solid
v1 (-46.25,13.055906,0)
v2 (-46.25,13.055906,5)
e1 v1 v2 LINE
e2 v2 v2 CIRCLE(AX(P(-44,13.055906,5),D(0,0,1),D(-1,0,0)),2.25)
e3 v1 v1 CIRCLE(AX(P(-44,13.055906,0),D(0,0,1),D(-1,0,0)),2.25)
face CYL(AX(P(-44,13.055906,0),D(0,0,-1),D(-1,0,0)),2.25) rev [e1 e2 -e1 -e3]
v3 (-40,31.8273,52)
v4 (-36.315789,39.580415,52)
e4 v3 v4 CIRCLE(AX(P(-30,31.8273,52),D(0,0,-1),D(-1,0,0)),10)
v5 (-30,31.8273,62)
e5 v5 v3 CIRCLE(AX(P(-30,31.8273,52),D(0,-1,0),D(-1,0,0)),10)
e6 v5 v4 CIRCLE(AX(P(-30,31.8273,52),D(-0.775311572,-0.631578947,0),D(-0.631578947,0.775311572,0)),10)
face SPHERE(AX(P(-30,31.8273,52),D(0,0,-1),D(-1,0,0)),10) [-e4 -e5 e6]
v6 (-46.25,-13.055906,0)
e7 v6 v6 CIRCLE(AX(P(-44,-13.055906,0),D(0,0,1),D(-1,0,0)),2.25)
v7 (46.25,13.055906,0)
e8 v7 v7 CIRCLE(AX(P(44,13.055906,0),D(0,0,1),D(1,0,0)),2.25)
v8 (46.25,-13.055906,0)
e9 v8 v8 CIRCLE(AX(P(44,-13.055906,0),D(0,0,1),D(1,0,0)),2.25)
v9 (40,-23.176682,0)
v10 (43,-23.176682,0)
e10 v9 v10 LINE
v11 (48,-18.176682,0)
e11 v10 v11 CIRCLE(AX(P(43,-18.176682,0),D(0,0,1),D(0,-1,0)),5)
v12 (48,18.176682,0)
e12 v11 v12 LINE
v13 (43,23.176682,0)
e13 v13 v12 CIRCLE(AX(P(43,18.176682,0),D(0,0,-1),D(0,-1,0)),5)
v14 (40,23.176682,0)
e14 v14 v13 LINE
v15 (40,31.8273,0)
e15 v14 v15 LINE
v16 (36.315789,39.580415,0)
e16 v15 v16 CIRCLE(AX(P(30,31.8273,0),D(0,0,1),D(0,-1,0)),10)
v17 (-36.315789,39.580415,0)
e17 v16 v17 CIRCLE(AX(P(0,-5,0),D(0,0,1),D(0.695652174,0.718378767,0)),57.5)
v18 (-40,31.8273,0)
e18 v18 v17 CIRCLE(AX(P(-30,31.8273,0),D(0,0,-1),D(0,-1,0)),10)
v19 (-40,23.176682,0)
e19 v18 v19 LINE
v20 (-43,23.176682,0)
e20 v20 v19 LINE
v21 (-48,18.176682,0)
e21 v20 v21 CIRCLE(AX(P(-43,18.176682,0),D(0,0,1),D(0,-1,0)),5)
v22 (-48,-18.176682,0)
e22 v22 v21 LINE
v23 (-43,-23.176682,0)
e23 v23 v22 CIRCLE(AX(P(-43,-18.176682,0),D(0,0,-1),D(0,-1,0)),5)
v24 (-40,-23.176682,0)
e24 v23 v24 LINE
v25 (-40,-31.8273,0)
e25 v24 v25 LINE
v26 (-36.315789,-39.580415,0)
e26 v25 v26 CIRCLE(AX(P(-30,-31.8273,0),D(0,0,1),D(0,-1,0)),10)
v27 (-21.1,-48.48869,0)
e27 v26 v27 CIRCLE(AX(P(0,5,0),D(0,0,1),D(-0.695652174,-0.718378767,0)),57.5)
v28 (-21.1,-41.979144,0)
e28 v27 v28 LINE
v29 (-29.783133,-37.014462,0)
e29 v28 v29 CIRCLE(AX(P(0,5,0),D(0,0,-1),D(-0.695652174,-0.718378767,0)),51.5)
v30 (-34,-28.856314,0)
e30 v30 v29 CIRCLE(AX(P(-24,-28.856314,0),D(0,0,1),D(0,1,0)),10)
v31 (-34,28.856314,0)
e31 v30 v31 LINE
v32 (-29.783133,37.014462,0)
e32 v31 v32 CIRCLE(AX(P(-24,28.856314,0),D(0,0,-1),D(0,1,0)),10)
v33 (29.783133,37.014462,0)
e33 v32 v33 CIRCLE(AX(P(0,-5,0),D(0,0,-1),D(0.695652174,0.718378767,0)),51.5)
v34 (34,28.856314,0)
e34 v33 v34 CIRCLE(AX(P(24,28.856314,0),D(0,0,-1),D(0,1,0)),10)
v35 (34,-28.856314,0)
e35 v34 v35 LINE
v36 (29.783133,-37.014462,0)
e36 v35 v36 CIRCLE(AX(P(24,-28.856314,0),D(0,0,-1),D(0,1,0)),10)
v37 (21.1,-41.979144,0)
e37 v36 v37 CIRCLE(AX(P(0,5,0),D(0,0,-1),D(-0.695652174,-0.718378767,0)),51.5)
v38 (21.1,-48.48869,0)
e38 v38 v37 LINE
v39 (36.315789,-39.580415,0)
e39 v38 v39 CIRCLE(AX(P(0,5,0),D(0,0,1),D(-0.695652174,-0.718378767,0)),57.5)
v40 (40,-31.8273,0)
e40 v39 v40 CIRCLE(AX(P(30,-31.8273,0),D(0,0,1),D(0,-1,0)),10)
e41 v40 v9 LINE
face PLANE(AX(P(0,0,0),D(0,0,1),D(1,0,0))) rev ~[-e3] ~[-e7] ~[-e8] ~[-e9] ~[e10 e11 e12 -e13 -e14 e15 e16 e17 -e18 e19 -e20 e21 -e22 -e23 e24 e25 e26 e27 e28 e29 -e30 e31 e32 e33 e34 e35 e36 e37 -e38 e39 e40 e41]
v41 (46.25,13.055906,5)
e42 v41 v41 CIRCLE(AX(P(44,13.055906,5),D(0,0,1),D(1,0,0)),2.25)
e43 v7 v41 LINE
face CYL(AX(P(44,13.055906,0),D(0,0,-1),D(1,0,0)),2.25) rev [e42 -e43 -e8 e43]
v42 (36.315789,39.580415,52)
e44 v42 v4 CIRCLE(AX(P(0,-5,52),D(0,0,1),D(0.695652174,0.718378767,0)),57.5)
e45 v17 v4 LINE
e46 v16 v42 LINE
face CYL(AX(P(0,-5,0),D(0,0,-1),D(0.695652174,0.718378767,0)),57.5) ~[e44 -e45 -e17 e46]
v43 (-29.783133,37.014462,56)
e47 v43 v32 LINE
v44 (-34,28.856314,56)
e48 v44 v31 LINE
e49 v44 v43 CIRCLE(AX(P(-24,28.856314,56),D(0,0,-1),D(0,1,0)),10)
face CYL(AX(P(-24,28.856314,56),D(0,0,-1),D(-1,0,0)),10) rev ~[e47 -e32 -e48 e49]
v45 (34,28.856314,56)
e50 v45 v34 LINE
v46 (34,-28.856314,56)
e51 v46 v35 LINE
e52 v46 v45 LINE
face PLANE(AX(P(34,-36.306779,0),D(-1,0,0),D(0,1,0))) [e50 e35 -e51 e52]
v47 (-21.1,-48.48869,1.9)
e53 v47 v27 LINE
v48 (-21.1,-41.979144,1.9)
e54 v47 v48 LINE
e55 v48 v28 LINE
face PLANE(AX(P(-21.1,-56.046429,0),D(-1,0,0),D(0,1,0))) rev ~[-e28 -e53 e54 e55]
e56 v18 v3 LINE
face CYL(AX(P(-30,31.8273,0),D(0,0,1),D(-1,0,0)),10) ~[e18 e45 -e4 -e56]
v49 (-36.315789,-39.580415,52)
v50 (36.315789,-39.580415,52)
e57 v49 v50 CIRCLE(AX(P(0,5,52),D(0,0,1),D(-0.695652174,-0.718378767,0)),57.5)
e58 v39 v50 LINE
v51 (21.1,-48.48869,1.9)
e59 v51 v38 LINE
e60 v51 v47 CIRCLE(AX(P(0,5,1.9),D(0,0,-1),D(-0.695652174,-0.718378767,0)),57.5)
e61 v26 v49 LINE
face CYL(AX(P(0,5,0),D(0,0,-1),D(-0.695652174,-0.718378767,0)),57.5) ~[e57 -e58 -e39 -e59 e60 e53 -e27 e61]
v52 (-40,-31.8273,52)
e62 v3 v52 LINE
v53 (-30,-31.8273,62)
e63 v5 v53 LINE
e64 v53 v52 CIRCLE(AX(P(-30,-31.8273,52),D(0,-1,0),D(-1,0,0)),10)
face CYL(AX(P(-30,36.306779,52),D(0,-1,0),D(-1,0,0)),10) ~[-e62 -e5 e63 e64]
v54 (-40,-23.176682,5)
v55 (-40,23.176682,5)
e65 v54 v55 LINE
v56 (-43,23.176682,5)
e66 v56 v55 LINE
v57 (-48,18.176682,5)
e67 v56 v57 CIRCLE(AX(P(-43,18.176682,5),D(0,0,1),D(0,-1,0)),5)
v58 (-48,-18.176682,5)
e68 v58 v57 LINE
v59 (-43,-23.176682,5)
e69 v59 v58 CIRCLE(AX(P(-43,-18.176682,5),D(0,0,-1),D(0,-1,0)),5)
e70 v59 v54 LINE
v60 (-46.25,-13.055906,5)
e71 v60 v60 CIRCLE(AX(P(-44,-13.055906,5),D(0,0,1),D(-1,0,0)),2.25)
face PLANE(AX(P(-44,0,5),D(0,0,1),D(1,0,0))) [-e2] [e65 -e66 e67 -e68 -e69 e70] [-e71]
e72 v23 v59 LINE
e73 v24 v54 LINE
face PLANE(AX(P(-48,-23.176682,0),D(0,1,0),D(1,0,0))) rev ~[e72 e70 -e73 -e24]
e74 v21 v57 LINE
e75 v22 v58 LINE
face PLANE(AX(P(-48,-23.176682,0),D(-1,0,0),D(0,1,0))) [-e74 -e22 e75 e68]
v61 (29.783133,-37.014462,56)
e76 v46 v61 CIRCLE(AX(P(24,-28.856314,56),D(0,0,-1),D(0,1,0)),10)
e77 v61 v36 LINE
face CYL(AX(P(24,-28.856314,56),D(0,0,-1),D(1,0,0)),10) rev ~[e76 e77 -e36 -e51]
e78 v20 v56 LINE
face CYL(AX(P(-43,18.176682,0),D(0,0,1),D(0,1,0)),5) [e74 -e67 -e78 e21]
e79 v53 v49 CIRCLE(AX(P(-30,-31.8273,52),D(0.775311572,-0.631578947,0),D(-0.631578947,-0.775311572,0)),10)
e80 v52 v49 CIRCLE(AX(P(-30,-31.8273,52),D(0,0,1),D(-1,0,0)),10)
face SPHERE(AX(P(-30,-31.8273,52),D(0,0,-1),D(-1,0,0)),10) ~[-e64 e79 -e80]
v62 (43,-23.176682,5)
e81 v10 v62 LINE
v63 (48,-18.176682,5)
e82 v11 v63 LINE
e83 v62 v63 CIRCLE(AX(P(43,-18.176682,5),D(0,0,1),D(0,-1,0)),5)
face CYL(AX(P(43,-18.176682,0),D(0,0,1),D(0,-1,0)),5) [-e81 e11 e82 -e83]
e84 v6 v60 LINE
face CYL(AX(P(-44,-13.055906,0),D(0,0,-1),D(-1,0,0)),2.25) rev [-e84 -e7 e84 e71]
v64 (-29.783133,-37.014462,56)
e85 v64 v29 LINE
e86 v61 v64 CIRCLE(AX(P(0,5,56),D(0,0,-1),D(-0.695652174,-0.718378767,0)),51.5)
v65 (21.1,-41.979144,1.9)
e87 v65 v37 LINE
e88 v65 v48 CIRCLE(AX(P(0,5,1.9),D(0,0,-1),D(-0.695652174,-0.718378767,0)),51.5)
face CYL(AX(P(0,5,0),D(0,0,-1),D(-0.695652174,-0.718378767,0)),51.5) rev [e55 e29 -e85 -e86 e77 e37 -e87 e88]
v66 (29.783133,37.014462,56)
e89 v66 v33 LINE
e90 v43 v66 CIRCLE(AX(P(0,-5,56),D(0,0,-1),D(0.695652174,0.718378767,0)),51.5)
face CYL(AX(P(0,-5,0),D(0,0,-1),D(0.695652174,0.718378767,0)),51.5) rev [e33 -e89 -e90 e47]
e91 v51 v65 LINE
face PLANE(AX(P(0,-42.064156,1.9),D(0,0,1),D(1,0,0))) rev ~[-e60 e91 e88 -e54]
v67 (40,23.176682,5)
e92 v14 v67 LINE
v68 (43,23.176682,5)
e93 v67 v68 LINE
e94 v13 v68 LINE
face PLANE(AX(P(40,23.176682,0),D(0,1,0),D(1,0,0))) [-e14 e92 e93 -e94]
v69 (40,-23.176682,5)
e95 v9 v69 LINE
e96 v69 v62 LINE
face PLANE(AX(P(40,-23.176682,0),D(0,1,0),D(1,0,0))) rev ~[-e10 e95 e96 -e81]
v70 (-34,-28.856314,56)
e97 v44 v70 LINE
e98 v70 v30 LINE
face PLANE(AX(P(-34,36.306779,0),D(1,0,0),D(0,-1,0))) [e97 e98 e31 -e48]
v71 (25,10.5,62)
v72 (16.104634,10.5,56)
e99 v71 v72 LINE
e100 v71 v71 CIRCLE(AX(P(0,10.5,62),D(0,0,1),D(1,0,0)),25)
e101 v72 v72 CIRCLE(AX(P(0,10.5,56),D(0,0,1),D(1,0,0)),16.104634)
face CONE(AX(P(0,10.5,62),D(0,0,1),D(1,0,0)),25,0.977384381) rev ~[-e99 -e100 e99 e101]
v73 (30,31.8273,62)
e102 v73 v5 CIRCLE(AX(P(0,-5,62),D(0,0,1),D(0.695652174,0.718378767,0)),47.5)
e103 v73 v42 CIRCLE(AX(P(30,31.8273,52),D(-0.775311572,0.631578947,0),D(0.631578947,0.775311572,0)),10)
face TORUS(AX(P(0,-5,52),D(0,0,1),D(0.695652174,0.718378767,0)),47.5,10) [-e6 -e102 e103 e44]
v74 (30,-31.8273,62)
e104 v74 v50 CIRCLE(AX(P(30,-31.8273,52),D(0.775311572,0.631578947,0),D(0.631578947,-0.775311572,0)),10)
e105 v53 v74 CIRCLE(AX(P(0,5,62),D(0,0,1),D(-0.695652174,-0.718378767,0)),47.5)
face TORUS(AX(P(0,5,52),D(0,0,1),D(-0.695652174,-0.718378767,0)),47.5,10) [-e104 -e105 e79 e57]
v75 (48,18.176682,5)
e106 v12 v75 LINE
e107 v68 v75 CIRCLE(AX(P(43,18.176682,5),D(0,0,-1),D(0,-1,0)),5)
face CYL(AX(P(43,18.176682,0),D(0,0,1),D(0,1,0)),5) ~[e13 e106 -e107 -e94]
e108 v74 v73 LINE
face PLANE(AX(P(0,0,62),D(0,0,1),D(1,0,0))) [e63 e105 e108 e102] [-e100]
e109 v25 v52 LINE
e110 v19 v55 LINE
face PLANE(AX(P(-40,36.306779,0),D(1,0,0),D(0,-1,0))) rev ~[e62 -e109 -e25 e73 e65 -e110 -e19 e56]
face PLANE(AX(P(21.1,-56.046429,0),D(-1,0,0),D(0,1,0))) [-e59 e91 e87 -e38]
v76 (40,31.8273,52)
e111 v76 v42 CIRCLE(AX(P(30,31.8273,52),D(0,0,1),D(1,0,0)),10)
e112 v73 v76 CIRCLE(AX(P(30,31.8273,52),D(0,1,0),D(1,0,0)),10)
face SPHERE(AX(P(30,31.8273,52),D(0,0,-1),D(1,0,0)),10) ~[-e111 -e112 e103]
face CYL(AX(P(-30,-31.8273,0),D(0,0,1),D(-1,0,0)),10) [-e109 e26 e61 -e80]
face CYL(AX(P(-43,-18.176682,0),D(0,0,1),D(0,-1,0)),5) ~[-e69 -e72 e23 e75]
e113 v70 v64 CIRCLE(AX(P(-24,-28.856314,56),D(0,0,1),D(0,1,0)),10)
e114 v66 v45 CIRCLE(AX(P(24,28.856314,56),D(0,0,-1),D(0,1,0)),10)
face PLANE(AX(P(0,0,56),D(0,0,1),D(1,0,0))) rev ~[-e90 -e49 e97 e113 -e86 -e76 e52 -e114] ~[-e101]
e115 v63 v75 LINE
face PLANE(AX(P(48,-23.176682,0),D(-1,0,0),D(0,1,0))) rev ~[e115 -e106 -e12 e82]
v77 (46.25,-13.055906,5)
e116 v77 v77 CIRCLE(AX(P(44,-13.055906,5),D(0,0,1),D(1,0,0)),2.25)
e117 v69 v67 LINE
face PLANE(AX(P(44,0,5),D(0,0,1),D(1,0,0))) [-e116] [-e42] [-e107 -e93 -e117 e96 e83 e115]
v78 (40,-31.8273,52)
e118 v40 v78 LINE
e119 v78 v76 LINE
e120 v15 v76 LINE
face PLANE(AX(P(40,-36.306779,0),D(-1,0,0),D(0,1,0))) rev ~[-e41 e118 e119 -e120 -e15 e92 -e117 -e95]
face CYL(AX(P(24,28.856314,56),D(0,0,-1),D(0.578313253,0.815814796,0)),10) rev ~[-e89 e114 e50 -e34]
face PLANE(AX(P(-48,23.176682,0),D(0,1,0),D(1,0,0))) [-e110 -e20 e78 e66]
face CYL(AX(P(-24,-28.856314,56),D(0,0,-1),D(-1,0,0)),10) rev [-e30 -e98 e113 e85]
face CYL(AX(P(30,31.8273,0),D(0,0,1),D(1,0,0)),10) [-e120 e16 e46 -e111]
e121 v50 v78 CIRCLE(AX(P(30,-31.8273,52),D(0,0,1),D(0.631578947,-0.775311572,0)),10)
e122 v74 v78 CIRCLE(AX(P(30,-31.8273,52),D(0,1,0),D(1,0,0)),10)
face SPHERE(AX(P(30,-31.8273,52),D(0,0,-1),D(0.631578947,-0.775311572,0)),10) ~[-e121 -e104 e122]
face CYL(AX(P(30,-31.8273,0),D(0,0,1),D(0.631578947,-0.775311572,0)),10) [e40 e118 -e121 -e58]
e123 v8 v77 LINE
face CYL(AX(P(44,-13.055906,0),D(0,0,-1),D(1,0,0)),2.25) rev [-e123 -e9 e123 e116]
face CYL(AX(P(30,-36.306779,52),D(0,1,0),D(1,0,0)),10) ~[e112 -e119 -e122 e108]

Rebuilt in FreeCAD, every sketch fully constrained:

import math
import FreeCAD as App
import Part
import Sketcher
Q = App.Units.Quantity


def edges_at(feature, points):
    """Names of the edges that pass closest to the given points."""
    edges = feature.Shape.Edges
    near = lambda p: min(range(len(edges)), key=lambda i: edges[i].distToShape(Part.Vertex(*p))[0])
    return sorted({f"Edge{near(p) + 1}" for p in points})


def faces_at(feature, points):
    """Names of the faces that lie closest to the given points."""
    faces = feature.Shape.Faces
    near = lambda p: min(range(len(faces)), key=lambda i: faces[i].distToShape(Part.Vertex(*p))[0])
    return sorted({f"Face{near(p) + 1}" for p in points})


def add_polygon(sketch, points):
    """Adds a closed chain of lines whose ends are joined by coincident constraints."""
    first, n = sketch.GeometryCount, len(points)
    for a, b in zip(points, points[1:] + points[:1]):
        sketch.addGeometry(Part.LineSegment(App.Vector(*a, 0), App.Vector(*b, 0)), False)
    for i in range(n):
        sketch.addConstraint(Sketcher.Constraint("Coincident", first + i, 2, first + (i + 1) % n, 1))

doc = App.newDocument("Part")
body = doc.addObject("PartDesign::Body", "Body")

sketch1 = doc.addObject("Sketcher::SketchObject", "Sketch")
body.addObject(sketch1)
sketch1.AttachmentSupport = (doc.XY_Plane, [""])
sketch1.MapMode = "FlatFace"
sketch1.addGeometry([
    Part.LineSegment(App.Vector(-40, 36, 0), App.Vector(-40, -36, 0)),
    Part.ArcOfCircle(Part.Circle(App.Vector(0, 5, 0), App.Vector(0, 0, 1), 58), math.radians(-134), math.radians(-46)),
    Part.LineSegment(App.Vector(40, -36, 0), App.Vector(40, 36, 0)),
    Part.ArcOfCircle(Part.Circle(App.Vector(0, -5, 0), App.Vector(0, 0, 1), 58), math.radians(46), math.radians(134)),
], False)
sketch1.addConstraint([
    Sketcher.Constraint("Coincident", 0, 2, 1, 1),
    Sketcher.Constraint("Coincident", 1, 2, 2, 1),
    Sketcher.Constraint("Coincident", 2, 2, 3, 1),
    Sketcher.Constraint("Coincident", 3, 2, 0, 1),
    Sketcher.Constraint("Vertical", 0),
    Sketcher.Constraint("Vertical", 2),
    Sketcher.Constraint("Equal", 1, 3),
    Sketcher.Constraint("Symmetric", 1, 3, 3, 3, -1, 1),
    Sketcher.Constraint("Symmetric", 0, 2, 1, 2, -2),
    Sketcher.Constraint("Radius", 1, Q("57.5 mm")),
    Sketcher.Constraint("DistanceY", -1, 1, 1, 3, Q("5 mm")),
    Sketcher.Constraint("DistanceX", 0, 2, -1, 1, Q("40 mm")),
])
pad1 = doc.addObject("PartDesign::Pad", "Pad")
body.addObject(pad1)
pad1.Profile = sketch1
pad1.Length = 62
doc.recompute()

thickness = doc.addObject("PartDesign::Thickness", "Thickness")
body.addObject(thickness)
thickness.Base = (pad1, faces_at(pad1, [(0, 0, 0)]))
thickness.Value = 6
thickness.Reversed = True
thickness.Join = "Intersection"
doc.recompute()

fillet = doc.addObject("PartDesign::Fillet", "Fillet")
body.addObject(fillet)
fillet.Base = (thickness, edges_at(thickness, [
    (0, -52.5, 62),
    (40, 0, 62),
    (0, 52.5, 62),
    (40, 36.307, 31),
    (40, -36.307, 31),
    (-40, -36.307, 31),
    (-40, 36.307, 31),
    (-40, 0, 62),
]))
fillet.Radius = 10
doc.recompute()

fillet2 = doc.addObject("PartDesign::Fillet", "Fillet001")
body.addObject(fillet2)
fillet2.Base = (fillet, edges_at(fillet, [
    (34, 33.681, 28),
    (-34, 33.681, 28),
    (-34, -33.681, 28),
    (34, -33.681, 28),
]))
fillet2.Radius = 10

sketch2 = doc.addObject("Sketcher::SketchObject", "Sketch001")
body.addObject(sketch2)
sketch2.AttachmentSupport = (doc.XY_Plane, [""])
sketch2.MapMode = "FlatFace"
add_polygon(sketch2, [(-21, -28), (-21, -56), (21, -56), (21, -28)])
sketch2.addConstraint([
    Sketcher.Constraint("Vertical", 0),
    Sketcher.Constraint("Horizontal", 1),
    Sketcher.Constraint("Vertical", 2),
    Sketcher.Constraint("Horizontal", 3),
    Sketcher.Constraint("DistanceX", 1, 1, 1, 2, Q("42.2 mm")),
    Sketcher.Constraint("DistanceX", 0, 2, -1, 1, Q("21.1 mm")),
    Sketcher.Constraint("DistanceY", 0, 2, 0, 1, Q("27.964545 mm")),
    Sketcher.Constraint("DistanceY", 0, 2, -1, 1, Q("56.046429 mm")),
])
pocket1 = doc.addObject("PartDesign::Pocket", "Pocket")
body.addObject(pocket1)
pocket1.Profile = sketch2
pocket1.Length = 1.9
pocket1.Reversed = True

sketch3 = doc.addObject("Sketcher::SketchObject", "Sketch002")
body.addObject(sketch3)
sketch3.AttachmentSupport = (doc.XY_Plane, [""])
sketch3.MapMode = "FlatFace"
sketch3.AttachmentOffset = App.Placement(App.Vector(0, 0, 62), App.Rotation())
sketch3.addGeometry(Part.Circle(App.Vector(0, 10, 0), App.Vector(0, 0, 1), 25), False)
sketch3.addConstraint([
    Sketcher.Constraint("PointOnObject", 0, 3, -2),
    Sketcher.Constraint("Diameter", 0, Q("50 mm")),
    Sketcher.Constraint("DistanceY", -1, 1, 0, 3, Q("10.5 mm")),
])
pocket2 = doc.addObject("PartDesign::Pocket", "Pocket001")
body.addObject(pocket2)
pocket2.Profile = sketch3
pocket2.Type = "ThroughAll"
doc.recompute()

datumplane = doc.addObject("PartDesign::Plane", "DatumPlane")
body.addObject(datumplane)
datumplane.AttachmentSupport = (doc.XY_Plane, [""])
datumplane.MapMode = "FlatFace"
datumplane.AttachmentOffset = App.Placement(App.Vector(0, 0, 62), App.Rotation())
draft = doc.addObject("PartDesign::Draft", "Draft")
body.addObject(draft)
draft.Base = (pocket2, faces_at(pocket2, [(-25, 10.5, 59)]))
draft.NeutralPlane = (datumplane, [""])
draft.Angle = 56
draft.Reversed = False

sketch4 = doc.addObject("Sketcher::SketchObject", "Sketch003")
body.addObject(sketch4)
sketch4.AttachmentSupport = (doc.XY_Plane, [""])
sketch4.MapMode = "FlatFace"
add_polygon(sketch4, [(40, 23.2), (40, -23.2), (48, -23.2), (48, 23.2)])
sketch4.addGeometry(Part.Circle(App.Vector(44, -13.1, 0), App.Vector(0, 0, 1), 2.2), False)
sketch4.addGeometry(Part.Circle(App.Vector(44, 13.1, 0), App.Vector(0, 0, 1), 2.2), False)
add_polygon(sketch4, [(-48, 23.2), (-48, -23.2), (-40, -23.2), (-40, 23.2)])
sketch4.addGeometry(Part.Circle(App.Vector(-44, -13.1, 0), App.Vector(0, 0, 1), 2.2), False)
sketch4.addGeometry(Part.Circle(App.Vector(-44, 13.1, 0), App.Vector(0, 0, 1), 2.2), False)
sketch4.addConstraint([
    Sketcher.Constraint("Vertical", 0),
    Sketcher.Constraint("Horizontal", 1),
    Sketcher.Constraint("Vertical", 2),
    Sketcher.Constraint("Horizontal", 3),
    Sketcher.Constraint("Vertical", 6),
    Sketcher.Constraint("Horizontal", 7),
    Sketcher.Constraint("Vertical", 8),
    Sketcher.Constraint("Horizontal", 9),
    Sketcher.Constraint("Equal", 4, 5),
    Sketcher.Constraint("Equal", 5, 10),
    Sketcher.Constraint("Equal", 10, 11),
    Sketcher.Constraint("Symmetric", 5, 3, 10, 3, -1, 1),
    Sketcher.Constraint("Symmetric", 4, 3, 11, 3, -1, 1),
    Sketcher.Constraint("Symmetric", 2, 2, 6, 2, -1, 1),
    Sketcher.Constraint("Symmetric", 0, 2, 8, 2, -1, 1),
    Sketcher.Constraint("Symmetric", 4, 3, 10, 3, -2),
    Sketcher.Constraint("Horizontal", 1, 2, 6, 2),
    Sketcher.Constraint("Diameter", 4, Q("4.5 mm")),
    Sketcher.Constraint("DistanceX", 1, 1, 1, 2, Q("8 mm")),
    Sketcher.Constraint("DistanceX", -1, 1, 4, 3, Q("44 mm")),
    Sketcher.Constraint("DistanceX", -1, 1, 0, 2, Q("40 mm")),
    Sketcher.Constraint("DistanceY", 0, 2, 0, 1, Q("46.353364 mm")),
    Sketcher.Constraint("DistanceY", 4, 3, 5, 3, Q("26.111811 mm")),
])
pad2 = doc.addObject("PartDesign::Pad", "Pad001")
body.addObject(pad2)
pad2.Profile = sketch4
pad2.Length = 5
doc.recompute()

fillet3 = doc.addObject("PartDesign::Fillet", "Fillet002")
body.addObject(fillet3)
fillet3.Base = (pad2, edges_at(pad2, [
    (48, -23.177, 2.5),
    (48, 23.177, 2.5),
    (-48, 23.177, 2.5),
    (-48, -23.177, 2.5),
]))
fillet3.Radius = 5

doc.recompute()
